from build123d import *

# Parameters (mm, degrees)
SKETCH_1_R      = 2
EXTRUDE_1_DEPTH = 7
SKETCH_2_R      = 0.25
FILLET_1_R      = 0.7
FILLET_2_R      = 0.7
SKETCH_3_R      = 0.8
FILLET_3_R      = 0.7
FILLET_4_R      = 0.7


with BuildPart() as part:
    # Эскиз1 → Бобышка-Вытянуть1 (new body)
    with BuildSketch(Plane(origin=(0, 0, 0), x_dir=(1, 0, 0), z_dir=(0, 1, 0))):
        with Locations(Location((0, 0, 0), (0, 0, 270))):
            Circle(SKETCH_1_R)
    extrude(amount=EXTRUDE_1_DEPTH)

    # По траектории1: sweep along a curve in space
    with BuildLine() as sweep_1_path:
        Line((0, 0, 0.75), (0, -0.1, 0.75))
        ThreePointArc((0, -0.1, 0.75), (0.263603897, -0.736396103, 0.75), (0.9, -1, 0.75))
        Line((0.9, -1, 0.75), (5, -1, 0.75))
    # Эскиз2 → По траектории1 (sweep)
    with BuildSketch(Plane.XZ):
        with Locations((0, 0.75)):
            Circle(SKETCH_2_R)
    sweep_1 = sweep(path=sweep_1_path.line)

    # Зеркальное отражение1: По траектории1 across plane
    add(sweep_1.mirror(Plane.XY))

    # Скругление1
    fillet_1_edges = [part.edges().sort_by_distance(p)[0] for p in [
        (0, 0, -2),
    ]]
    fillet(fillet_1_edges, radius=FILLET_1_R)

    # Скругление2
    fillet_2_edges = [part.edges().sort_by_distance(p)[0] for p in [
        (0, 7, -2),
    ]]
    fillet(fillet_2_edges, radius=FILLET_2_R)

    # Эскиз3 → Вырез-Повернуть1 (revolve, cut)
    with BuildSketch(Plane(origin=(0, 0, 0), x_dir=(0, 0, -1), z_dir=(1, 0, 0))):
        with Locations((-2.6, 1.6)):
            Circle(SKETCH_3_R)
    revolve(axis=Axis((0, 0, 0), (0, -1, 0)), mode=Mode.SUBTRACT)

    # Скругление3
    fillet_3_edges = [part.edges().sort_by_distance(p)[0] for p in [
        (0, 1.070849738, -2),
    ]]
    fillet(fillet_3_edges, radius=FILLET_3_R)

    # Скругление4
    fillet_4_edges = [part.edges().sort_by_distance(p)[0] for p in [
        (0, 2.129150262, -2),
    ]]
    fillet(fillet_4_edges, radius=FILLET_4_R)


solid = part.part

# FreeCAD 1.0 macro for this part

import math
import FreeCAD as App
import Part
import Sketcher

V = App.Vector
Q = App.Units.Quantity


def edges_at(feature, points):
    """Names of the edges that pass closest to the given points."""
    edges = feature.Shape.Edges
    near = lambda p: min(range(len(edges)), key=lambda i: edges[i].distToShape(Part.Vertex(*p))[0])
    return sorted({f"Edge{near(p) + 1}" for p in points})

doc = App.newDocument("Part")
params = doc.addObject("Spreadsheet::Sheet", "Params")
for row, (alias, value) in enumerate([
    ("sketch1_diameter", "4 mm"),
    ("pad1_length", "7 mm"),
    ("sketch2_diameter", "0.5 mm"),
    ("sketch3_radius", "0.9 mm"),
    ("sketch3_width", "4.1 mm"),
    ("sketch3_height", "0.1 mm"),
    ("fillet_radius", "0.7 mm"),
    ("fillet2_radius", "0.7 mm"),
    ("sketch4_diameter", "1.6 mm"),
    ("groove_angle", "360 deg"),
    ("fillet3_radius", "0.7 mm"),
    ("fillet4_radius", "0.7 mm"),
], start=1):
    params.set(f"A{row}", alias)
    params.set(f"B{row}", "=" + value)
    params.setAlias(f"B{row}", alias)

body = doc.addObject("PartDesign::Body", "Body")

# Sketch on XZ plane
sketch1 = body.newObject("Sketcher::SketchObject", "Sketch")
sketch1.AttachmentSupport = (doc.getObject("XZ_Plane"), [""])
sketch1.MapMode = "FlatFace"
sketch1.addGeometry(Part.Circle(V(0, 0, 0), V(0, 0, 1), 2), False)
sketch1.addConstraint([
    Sketcher.Constraint("Coincident", 0, 3, -1, 1),
    Sketcher.Constraint("Diameter", 0, Q("4 mm")),
])
sketch1.setExpression("Constraints[1]", "Params.sketch1_diameter")
pad1 = body.newObject("PartDesign::Pad", "Pad")
pad1.Profile = sketch1
pad1.setExpression("Length", "Params.pad1_length")
pad1.Reversed = True

# Sketch on XZ plane
sketch2 = body.newObject("Sketcher::SketchObject", "Sketch001")
sketch2.AttachmentSupport = (doc.getObject("XZ_Plane"), [""])
sketch2.MapMode = "FlatFace"
sketch2.addGeometry(Part.Circle(V(0, 0.75, 0), V(0, 0, 1), 0.25), False)
sketch2.addConstraint([
    Sketcher.Constraint("PointOnObject", 0, 3, -2),
    Sketcher.Constraint("Diameter", 0, Q("0.5 mm")),
    Sketcher.Constraint("DistanceY", -1, 1, 0, 3, Q("0.75 mm")),
])
sketch2.setExpression("Constraints[1]", "Params.sketch2_diameter")

# Sketch on XY plane
sketch3 = body.newObject("Sketcher::SketchObject", "Sketch002")
sketch3.AttachmentSupport = (doc.getObject("XY_Plane"), [""])
sketch3.MapMode = "FlatFace"
sketch3.AttachmentOffset = App.Placement(V(0, 0, 0.75), App.Rotation())
sketch3.addGeometry([
    Part.LineSegment(V(0, 0, 0), V(0, -0.1, 0)),
    Part.ArcOfCircle(Part.Circle(V(0.9, -0.1, 0), V(0, 0, 1), 0.9), math.radians(180), math.radians(270)),
    Part.LineSegment(V(0.9, -1, 0), V(5, -1, 0)),
], False)
sketch3.addConstraint([
    Sketcher.Constraint("Tangent", 0, 2, 1, 1),
    Sketcher.Constraint("Tangent", 1, 2, 2, 1),
    Sketcher.Constraint("Vertical", 0),
    Sketcher.Constraint("Horizontal", 2),
    Sketcher.Constraint("Coincident", 0, 1, -1, 1),
    Sketcher.Constraint("Radius", 1, Q("0.9 mm")),
    Sketcher.Constraint("DistanceX", 2, 1, 2, 2, Q("4.1 mm")),
    Sketcher.Constraint("DistanceY", 0, 2, 0, 1, Q("0.1 mm")),
])
sketch3.setExpression("Constraints[5]", "Params.sketch3_radius")
sketch3.setExpression("Constraints[6]", "Params.sketch3_width")
sketch3.setExpression("Constraints[7]", "Params.sketch3_height")
doc.recompute()

additivepipe = body.newObject("PartDesign::AdditivePipe", "AdditivePipe")
additivepipe.Profile = sketch2
additivepipe.Spine = (sketch3, ["Edge1", "Edge2", "Edge3"])
doc.recompute()

mirrored = body.newObject("PartDesign::Mirrored", "Mirrored")
mirrored.Originals = [additivepipe]
mirrored.MirrorPlane = (doc.getObject("XY_Plane"), [""])
body.Tip = mirrored
doc.recompute()

fillet = body.newObject("PartDesign::Fillet", "Fillet")
fillet.Base = (mirrored, edges_at(mirrored, [(0, 0, -2)]))
fillet.setExpression("Radius", "Params.fillet_radius")
doc.recompute()

fillet2 = body.newObject("PartDesign::Fillet", "Fillet001")
fillet2.Base = (fillet, edges_at(fillet, [(0, 7, -2)]))
fillet2.setExpression("Radius", "Params.fillet2_radius")

# Sketch on YZ plane
sketch4 = body.newObject("Sketcher::SketchObject", "Sketch003")
sketch4.AttachmentSupport = (doc.getObject("YZ_Plane"), [""])
sketch4.MapMode = "FlatFace"
sketch4.addGeometry(Part.Circle(V(1.6, 2.6, 0), V(0, 0, 1), 0.8), False)
sketch4.addConstraint([
    Sketcher.Constraint("Diameter", 0, Q("1.6 mm")),
    Sketcher.Constraint("DistanceX", -1, 1, 0, 3, Q("1.6 mm")),
    Sketcher.Constraint("DistanceY", -1, 1, 0, 3, Q("2.6 mm")),
])
sketch4.setExpression("Constraints[0]", "Params.sketch4_diameter")
groove = body.newObject("PartDesign::Groove", "Groove")
groove.Profile = sketch4
groove.ReferenceAxis = (sketch4, ["H_Axis"])
groove.setExpression("Angle", "Params.groove_angle")
doc.recompute()

fillet3 = body.newObject("PartDesign::Fillet", "Fillet002")
fillet3.Base = (groove, edges_at(groove, [(0, 1.071, -2)]))
fillet3.setExpression("Radius", "Params.fillet3_radius")
doc.recompute()

fillet4 = body.newObject("PartDesign::Fillet", "Fillet003")
fillet4.Base = (fillet3, edges_at(fillet3, [(0, 2.129, -2)]))
fillet4.setExpression("Radius", "Params.fillet4_radius")

doc.recompute()
